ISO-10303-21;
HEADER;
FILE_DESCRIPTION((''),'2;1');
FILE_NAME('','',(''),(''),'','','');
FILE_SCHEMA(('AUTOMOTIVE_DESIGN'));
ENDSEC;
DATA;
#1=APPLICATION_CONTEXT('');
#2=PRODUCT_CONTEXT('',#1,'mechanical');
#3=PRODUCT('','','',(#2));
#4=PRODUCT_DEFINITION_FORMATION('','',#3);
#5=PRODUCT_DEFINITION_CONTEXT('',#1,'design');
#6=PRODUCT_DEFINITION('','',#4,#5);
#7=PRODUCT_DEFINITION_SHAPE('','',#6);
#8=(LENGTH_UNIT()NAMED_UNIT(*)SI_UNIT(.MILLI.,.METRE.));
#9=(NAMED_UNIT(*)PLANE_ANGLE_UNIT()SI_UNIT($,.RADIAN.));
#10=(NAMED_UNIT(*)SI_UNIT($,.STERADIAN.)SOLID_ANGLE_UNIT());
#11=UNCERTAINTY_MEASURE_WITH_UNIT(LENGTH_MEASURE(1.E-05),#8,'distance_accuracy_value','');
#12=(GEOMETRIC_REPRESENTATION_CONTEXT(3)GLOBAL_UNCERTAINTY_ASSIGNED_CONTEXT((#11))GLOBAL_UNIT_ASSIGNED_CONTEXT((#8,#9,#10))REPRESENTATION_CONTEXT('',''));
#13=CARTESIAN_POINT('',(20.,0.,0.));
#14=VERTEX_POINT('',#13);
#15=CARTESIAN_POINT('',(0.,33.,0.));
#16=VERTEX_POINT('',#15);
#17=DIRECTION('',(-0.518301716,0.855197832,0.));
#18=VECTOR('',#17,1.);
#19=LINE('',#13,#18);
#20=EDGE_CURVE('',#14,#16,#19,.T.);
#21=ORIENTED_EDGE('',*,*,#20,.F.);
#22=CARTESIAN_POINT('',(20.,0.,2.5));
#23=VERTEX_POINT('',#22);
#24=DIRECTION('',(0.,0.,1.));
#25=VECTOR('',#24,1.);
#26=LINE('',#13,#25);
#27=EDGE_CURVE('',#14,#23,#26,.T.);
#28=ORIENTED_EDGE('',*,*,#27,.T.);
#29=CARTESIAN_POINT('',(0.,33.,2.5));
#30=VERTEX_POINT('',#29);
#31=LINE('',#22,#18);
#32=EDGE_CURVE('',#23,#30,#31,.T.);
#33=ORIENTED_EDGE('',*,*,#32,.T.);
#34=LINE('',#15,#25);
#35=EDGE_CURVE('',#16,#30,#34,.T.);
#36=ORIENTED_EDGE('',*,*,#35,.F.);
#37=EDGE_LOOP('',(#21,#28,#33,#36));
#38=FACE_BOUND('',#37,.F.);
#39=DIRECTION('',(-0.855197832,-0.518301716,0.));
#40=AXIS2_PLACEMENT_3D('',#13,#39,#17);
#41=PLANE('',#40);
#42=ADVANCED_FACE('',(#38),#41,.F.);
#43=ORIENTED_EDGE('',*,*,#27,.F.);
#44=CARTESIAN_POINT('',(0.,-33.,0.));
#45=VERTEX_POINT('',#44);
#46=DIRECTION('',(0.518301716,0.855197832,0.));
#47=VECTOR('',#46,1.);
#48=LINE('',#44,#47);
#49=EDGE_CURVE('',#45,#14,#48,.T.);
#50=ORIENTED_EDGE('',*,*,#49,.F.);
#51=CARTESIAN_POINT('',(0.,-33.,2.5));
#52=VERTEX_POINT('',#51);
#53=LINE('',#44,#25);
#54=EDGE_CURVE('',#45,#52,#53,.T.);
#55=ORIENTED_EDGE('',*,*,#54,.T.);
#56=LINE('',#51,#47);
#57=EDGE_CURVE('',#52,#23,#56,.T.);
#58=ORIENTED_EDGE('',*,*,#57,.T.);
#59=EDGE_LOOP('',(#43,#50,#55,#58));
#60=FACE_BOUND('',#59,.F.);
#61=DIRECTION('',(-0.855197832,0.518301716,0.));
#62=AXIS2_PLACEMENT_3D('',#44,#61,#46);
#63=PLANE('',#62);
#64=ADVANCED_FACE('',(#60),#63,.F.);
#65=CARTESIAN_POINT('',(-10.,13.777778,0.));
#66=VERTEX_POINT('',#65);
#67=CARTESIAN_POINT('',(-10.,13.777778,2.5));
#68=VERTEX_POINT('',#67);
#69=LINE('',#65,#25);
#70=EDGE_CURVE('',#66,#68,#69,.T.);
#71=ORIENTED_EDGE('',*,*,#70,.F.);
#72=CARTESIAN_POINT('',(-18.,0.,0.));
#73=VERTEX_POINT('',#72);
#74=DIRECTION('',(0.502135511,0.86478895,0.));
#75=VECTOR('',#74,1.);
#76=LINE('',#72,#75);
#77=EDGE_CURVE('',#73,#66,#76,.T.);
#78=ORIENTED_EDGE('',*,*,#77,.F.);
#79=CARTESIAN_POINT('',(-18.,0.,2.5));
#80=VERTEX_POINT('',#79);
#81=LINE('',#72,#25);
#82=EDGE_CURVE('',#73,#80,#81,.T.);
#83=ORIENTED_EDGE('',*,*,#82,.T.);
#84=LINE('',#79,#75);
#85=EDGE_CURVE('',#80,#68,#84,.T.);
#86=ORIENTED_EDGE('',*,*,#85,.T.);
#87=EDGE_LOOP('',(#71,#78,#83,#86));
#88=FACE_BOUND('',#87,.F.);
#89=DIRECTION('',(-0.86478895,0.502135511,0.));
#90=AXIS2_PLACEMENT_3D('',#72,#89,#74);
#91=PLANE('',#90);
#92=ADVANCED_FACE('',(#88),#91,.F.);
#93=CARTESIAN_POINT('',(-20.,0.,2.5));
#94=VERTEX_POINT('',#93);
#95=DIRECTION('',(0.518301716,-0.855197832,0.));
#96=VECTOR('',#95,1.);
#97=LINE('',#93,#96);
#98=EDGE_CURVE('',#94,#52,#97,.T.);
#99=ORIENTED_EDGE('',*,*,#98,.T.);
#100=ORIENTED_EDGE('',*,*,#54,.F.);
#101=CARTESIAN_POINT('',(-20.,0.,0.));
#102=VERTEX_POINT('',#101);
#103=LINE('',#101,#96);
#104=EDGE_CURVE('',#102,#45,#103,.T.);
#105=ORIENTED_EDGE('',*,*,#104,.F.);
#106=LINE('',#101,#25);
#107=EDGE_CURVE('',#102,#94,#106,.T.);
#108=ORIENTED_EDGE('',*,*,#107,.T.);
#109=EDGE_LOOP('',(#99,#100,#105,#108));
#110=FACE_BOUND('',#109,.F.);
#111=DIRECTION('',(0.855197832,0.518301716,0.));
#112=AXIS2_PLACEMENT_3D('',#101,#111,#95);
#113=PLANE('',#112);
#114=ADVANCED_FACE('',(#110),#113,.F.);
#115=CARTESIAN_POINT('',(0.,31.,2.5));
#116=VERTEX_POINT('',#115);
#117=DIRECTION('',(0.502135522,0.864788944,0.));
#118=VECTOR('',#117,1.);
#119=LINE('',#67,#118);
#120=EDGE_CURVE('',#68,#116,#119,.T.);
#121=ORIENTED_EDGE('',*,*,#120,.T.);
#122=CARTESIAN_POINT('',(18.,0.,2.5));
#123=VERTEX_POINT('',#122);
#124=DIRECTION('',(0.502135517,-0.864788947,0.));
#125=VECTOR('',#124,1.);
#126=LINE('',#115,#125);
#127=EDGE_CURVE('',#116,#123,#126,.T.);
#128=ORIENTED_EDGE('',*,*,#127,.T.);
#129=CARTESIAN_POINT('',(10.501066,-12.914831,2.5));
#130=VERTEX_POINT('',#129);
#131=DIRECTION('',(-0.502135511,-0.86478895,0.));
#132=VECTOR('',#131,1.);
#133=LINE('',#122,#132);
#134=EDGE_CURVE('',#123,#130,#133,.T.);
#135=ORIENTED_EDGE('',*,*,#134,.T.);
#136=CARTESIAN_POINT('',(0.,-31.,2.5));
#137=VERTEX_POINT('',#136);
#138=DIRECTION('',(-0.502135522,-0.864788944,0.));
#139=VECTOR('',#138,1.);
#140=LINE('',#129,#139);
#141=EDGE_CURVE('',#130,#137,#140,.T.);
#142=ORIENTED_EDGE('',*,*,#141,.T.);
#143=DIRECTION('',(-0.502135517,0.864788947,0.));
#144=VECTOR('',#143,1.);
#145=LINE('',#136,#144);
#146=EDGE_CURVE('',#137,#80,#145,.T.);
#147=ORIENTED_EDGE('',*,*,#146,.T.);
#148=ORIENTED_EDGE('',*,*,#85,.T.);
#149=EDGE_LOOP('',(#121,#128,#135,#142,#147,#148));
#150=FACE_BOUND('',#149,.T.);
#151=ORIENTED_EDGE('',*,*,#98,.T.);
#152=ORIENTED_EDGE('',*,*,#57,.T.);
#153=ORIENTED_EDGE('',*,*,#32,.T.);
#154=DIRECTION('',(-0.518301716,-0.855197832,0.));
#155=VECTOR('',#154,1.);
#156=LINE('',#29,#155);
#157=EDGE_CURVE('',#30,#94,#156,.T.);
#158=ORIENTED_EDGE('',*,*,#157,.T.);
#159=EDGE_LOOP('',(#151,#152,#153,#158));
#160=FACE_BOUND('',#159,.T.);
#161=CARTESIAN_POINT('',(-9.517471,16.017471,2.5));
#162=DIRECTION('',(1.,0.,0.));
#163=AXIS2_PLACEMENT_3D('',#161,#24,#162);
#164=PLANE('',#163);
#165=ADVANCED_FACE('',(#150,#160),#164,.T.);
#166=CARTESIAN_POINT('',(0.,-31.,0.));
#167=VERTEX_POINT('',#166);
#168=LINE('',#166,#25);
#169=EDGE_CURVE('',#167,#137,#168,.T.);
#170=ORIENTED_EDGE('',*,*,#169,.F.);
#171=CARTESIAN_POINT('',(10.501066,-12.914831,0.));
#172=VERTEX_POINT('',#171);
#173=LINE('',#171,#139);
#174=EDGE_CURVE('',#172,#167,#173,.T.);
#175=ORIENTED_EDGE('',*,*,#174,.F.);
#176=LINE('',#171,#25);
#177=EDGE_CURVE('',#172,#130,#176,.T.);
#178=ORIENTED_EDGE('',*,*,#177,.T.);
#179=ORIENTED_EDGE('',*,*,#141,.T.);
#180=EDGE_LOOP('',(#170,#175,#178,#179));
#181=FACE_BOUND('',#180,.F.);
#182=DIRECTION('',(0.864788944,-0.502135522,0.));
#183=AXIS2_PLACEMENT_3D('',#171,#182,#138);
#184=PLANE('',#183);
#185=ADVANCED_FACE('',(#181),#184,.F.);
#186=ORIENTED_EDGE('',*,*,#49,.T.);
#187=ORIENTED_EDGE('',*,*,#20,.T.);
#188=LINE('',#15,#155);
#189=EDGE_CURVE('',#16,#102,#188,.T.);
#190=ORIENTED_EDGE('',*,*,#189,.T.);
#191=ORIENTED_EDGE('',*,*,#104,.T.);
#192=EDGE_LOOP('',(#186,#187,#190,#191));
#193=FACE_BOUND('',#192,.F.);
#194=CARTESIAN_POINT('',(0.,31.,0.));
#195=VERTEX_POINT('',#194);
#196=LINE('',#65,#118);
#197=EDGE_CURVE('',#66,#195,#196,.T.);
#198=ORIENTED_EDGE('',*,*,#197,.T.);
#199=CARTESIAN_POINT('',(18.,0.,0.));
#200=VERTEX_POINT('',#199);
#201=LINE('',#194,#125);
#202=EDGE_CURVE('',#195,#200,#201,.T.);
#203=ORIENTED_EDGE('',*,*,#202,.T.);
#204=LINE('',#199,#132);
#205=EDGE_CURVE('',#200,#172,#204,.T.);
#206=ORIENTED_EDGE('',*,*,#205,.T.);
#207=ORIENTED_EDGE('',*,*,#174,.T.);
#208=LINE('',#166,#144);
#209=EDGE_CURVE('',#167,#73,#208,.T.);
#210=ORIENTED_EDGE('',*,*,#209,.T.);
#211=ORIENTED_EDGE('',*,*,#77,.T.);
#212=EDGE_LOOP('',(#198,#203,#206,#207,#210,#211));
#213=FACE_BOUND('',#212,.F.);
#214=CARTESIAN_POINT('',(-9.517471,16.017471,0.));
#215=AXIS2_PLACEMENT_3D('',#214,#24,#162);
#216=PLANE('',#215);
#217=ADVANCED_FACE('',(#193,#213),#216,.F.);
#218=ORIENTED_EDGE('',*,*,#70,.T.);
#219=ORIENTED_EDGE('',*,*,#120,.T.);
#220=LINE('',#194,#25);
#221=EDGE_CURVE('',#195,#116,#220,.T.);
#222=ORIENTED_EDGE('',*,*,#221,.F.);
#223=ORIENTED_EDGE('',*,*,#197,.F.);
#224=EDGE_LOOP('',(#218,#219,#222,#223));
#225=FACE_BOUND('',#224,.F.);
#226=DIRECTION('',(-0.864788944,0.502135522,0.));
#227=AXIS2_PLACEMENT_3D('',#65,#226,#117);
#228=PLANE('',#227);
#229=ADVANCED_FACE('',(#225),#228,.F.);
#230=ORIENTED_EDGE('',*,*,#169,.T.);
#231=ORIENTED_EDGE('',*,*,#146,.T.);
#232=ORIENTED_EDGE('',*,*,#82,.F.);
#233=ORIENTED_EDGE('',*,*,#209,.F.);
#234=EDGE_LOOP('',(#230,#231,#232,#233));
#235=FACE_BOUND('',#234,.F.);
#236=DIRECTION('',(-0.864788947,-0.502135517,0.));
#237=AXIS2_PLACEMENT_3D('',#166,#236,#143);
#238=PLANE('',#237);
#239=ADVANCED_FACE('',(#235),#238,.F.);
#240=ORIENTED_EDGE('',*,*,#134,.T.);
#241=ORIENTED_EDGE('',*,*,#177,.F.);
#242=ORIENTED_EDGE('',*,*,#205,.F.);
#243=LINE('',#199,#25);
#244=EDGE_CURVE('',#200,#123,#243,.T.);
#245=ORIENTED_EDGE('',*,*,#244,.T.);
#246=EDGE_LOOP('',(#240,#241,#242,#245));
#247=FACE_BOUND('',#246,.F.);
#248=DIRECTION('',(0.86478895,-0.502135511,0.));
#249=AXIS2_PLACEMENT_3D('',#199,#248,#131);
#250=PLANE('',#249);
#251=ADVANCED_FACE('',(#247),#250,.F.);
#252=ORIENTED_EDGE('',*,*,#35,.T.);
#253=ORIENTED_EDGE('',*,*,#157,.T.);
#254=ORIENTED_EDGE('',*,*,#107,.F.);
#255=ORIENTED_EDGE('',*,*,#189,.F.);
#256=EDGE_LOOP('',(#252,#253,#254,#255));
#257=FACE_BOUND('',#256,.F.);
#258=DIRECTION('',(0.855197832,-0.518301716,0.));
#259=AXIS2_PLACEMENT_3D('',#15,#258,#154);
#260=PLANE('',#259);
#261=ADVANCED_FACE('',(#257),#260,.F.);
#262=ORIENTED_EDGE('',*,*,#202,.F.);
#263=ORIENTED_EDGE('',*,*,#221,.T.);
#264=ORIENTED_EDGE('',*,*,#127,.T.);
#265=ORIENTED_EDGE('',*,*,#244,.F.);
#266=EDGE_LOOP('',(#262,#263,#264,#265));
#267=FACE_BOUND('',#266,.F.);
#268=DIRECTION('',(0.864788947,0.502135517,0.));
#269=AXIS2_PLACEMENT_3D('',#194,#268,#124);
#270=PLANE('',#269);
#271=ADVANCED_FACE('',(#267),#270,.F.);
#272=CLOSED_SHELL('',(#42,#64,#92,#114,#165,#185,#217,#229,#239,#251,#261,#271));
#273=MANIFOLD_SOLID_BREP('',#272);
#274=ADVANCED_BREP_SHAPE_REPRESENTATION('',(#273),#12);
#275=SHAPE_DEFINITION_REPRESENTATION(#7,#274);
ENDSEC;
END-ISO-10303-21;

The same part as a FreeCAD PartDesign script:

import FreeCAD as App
import Part
import Sketcher
Q = App.Units.Quantity


def add_polygon(sketch, points):
    """Adds a closed chain of lines whose ends are joined by coincident constraints."""
    first, n = sketch.GeometryCount, len(points)
    for a, b in zip(points, points[1:] + points[:1]):
        sketch.addGeometry(Part.LineSegment(App.Vector(*a, 0), App.Vector(*b, 0)), False)
    for i in range(n):
        sketch.addConstraint(Sketcher.Constraint("Coincident", first + i, 2, first + (i + 1) % n, 1))

doc = App.newDocument("Part")
body = doc.addObject("PartDesign::Body", "Body")

# Sketch on XY plane
sketch1 = body.newObject("Sketcher::SketchObject", "Sketch")
sketch1.AttachmentSupport = (doc.getObject("XY_Plane"), [""])
sketch1.MapMode = "FlatFace"
add_polygon(sketch1, [(0, 33), (-20, 0), (0, -33), (20, 0)])  # lines 0-3
add_polygon(sketch1, [(-18, 0), (-10, 13.777778), (0, 31), (18, 0), (10.501066, -12.914831), (0, -31)])  # lines 4-9
sketch1.addConstraint([
    Sketcher.Constraint("Symmetric", 0, 2, 2, 2, -1, 1),
    Sketcher.Constraint("Symmetric", 1, 2, 3, 2, -1, 1),
    Sketcher.Constraint("Symmetric", 5, 2, 8, 2, -1, 1),
    Sketcher.Constraint("Symmetric", 6, 2, 9, 2, -1, 1),
    Sketcher.Constraint("PointOnObject", 0, 2, -1),
    Sketcher.Constraint("PointOnObject", 1, 2, -2),
    Sketcher.Constraint("PointOnObject", 5, 2, -2),
    Sketcher.Constraint("PointOnObject", 6, 2, -1),
    Sketcher.Constraint("Parallel", 4, 5),
    Sketcher.Constraint("Parallel", 5, 7),
    Sketcher.Constraint("DistanceX", 0, 2, -1, 1, Q("20 mm")),
    Sketcher.Constraint("DistanceY", 1, 2, -1, 1, Q("33 mm")),
    Sketcher.Constraint("DistanceX", 4, 2, -1, 1, Q("10 mm")),
    Sketcher.Constraint("DistanceY", -1, 1, 5, 2, Q("31 mm")),
    Sketcher.Constraint("DistanceX", -1, 1, 6, 2, Q("18 mm")),
    Sketcher.Constraint("DistanceY", 7, 2, -1, 1, Q("12.914831 mm")),
])
pad1 = body.newObject("PartDesign::Pad", "Pad")
pad1.Profile = sketch1
pad1.Length = 2.5

doc.recompute()
